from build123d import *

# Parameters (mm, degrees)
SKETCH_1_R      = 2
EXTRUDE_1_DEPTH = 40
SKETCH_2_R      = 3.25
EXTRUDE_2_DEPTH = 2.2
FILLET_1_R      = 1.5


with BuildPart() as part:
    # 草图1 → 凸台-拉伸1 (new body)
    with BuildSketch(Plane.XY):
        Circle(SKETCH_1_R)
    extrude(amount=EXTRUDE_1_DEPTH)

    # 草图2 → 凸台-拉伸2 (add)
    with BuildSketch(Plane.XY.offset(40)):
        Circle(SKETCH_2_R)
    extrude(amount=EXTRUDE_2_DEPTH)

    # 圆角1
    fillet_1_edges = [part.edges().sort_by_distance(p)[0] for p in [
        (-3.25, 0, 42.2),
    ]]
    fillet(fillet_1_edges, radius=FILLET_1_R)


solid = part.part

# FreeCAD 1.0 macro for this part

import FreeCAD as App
import Part
import Sketcher

V = App.Vector


def edges_at(feature, points):
    """Names of the edges that pass closest to the given points."""
    edges = feature.Shape.Edges
    near = lambda p: min(range(len(edges)), key=lambda i: edges[i].distToShape(Part.Vertex(*p))[0])
    return sorted({f"Edge{near(p) + 1}" for p in points})

doc = App.newDocument("Part")
body = doc.addObject("PartDesign::Body", "Body")

# Sketch on XY plane
sketch1 = body.newObject("Sketcher::SketchObject", "Sketch")
sketch1.AttachmentSupport = (doc.getObject("XY_Plane"), [""])
sketch1.MapMode = "FlatFace"
sketch1.addGeometry(Part.Circle(V(0, 0, 0), V(0, 0, 1), 2), False)
sketch1.addConstraint([
    Sketcher.Constraint("Coincident", 0, 3, -1, 1),
    Sketcher.Constraint("Diameter", 0, 4.0),
])
pad1 = body.newObject("PartDesign::Pad", "Pad")
pad1.Profile = sketch1
pad1.Length = 40

# Sketch on XY plane
sketch2 = body.newObject("Sketcher::SketchObject", "Sketch001")
sketch2.AttachmentSupport = (doc.getObject("XY_Plane"), [""])
sketch2.MapMode = "FlatFace"
sketch2.AttachmentOffset = App.Placement(V(0, 0, 40), App.Rotation())
sketch2.addGeometry(Part.Circle(V(0, 0, 0), V(0, 0, 1), 3.2), False)
sketch2.addConstraint([
    Sketcher.Constraint("Coincident", 0, 3, -1, 1),
    Sketcher.Constraint("Diameter", 0, 6.5),
])
pad2 = body.newObject("PartDesign::Pad", "Pad001")
pad2.Profile = sketch2
pad2.Length = 2.2
doc.recompute()

fillet = body.newObject("PartDesign::Fillet", "Fillet")
fillet.Base = (pad2, edges_at(pad2, [(-3.25, 0, 42.2)]))
fillet.Radius = 1.5

doc.recompute()
